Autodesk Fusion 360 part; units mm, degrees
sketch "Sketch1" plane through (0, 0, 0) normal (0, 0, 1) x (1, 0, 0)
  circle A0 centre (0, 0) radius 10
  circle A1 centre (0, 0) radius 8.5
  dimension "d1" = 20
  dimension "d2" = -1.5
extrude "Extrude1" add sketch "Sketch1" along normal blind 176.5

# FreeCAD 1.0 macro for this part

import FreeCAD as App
import Part
import Sketcher

doc = App.newDocument("Part")
params = doc.addObject("Spreadsheet::Sheet", "Params")
for row, (alias, value) in enumerate([
    ("sketch1_diameter", "20 mm"),
    ("sketch1_diameter2", "17 mm"),
    ("pad1_length", "176.5 mm"),
], start=1):
    params.set(f"A{row}", alias)
    params.set(f"B{row}", "=" + value)
    params.setAlias(f"B{row}", alias)

body = doc.addObject("PartDesign::Body", "Body")

# Sketch on XY plane
sketch1 = body.newObject("Sketcher::SketchObject", "Sketch")
sketch1.AttachmentSupport = (doc.getObject("XY_Plane"), [""])
sketch1.MapMode = "FlatFace"
sketch1.addGeometry([
    Part.Circle(App.Vector(0, 0, 0), App.Vector(0, 0, 1), 10),
    Part.Circle(App.Vector(0, 0, 0), App.Vector(0, 0, 1), 8),
], False)
sketch1.addConstraint([
    Sketcher.Constraint("Coincident", 0, 3, -1, 1),
    Sketcher.Constraint("Coincident", 1, 3, -1, 1),
    Sketcher.Constraint("Diameter", 0, 20.0),
    Sketcher.Constraint("Diameter", 1, 17.0),
])
sketch1.setExpression("Constraints[2]", "Params.sketch1_diameter")
sketch1.setExpression("Constraints[3]", "Params.sketch1_diameter2")
pad1 = body.newObject("PartDesign::Pad", "Pad")
pad1.Profile = sketch1
pad1.setExpression("Length", "Params.pad1_length")

doc.recompute()
